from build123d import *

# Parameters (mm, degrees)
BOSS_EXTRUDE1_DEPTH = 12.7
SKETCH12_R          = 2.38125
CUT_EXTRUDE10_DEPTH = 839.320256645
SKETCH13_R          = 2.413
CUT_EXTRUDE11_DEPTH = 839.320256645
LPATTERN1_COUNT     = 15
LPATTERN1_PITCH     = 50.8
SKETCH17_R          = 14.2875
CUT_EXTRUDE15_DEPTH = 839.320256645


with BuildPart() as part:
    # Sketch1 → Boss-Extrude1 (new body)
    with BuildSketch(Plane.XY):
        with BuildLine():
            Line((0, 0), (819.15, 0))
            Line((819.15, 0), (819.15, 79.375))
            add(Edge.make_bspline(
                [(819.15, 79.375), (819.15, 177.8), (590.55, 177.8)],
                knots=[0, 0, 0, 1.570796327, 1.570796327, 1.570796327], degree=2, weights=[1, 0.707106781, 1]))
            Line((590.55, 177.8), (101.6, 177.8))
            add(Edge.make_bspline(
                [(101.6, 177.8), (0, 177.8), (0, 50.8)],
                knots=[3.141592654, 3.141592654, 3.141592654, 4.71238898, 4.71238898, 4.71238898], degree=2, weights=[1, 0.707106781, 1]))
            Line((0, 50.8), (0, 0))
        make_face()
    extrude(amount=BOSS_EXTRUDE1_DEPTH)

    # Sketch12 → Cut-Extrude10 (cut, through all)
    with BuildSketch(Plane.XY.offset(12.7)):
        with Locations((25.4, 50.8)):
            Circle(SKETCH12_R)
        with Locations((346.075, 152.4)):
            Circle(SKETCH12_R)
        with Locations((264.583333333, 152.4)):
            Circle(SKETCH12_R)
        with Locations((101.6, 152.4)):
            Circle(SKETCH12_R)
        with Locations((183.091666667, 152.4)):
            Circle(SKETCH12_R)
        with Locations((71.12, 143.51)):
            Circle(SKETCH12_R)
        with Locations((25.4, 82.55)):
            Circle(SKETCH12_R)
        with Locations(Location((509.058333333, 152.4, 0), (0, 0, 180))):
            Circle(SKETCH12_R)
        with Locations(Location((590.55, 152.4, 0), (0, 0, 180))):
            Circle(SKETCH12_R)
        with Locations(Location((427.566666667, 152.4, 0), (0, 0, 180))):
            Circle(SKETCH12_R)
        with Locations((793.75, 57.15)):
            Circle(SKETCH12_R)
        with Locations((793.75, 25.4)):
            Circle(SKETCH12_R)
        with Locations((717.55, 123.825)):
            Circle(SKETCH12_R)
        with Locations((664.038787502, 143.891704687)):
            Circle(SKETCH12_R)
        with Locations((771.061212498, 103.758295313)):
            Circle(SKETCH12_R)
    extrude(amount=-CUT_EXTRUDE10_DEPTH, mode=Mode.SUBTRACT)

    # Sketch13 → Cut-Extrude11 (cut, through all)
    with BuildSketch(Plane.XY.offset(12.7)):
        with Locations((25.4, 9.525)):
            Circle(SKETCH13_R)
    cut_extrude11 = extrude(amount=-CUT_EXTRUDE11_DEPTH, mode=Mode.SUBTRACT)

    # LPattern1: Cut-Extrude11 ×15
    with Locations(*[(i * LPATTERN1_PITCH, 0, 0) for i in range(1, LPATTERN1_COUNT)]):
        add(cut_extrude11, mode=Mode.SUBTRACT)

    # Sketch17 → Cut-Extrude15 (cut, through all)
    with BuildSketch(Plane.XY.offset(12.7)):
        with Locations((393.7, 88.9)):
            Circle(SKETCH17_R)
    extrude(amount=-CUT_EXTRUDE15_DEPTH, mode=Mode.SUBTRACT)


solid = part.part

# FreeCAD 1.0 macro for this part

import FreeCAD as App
import Part
import Sketcher
Q = App.Units.Quantity

doc = App.newDocument("Part")
body = doc.addObject("PartDesign::Body", "Body")

sketch1 = body.newObject("Sketcher::SketchObject", "Sketch")
sketch1.AttachmentSupport = (doc.getObject("XY_Plane"), [""])
sketch1.MapMode = "FlatFace"
sketch1.addGeometry(Part.LineSegment(App.Vector(0, 0, 0), App.Vector(819.15, 0, 0)), False)
sketch1.addGeometry(Part.LineSegment(App.Vector(819.15, 0, 0), App.Vector(819.15, 79.375, 0)), False)
sketch1.addGeometry(Part.BSplineCurve([App.Vector(819.15, 79.375, 0), App.Vector(819.15, 177.8, 0), App.Vector(590.55, 177.8, 0)], [3, 3], [0, 1.570796327], False, 2, [1, 0.707106781, 1], False), False)
sketch1.addGeometry(Part.LineSegment(App.Vector(590.55, 177.8, 0), App.Vector(101.6, 177.8, 0)), False)
sketch1.addGeometry(Part.BSplineCurve([App.Vector(101.6, 177.8, 0), App.Vector(0, 177.8, 0), App.Vector(0, 50.8, 0)], [3, 3], [3.141592654, 4.71238898], False, 2, [1, 0.707106781, 1], False), False)
sketch1.addGeometry(Part.LineSegment(App.Vector(0, 50.8, 0), App.Vector(0, 0, 0)), False)
sketch1.addConstraint(Sketcher.Constraint("Block", 2))
sketch1.addConstraint(Sketcher.Constraint("Block", 4))
sketch1.addConstraint(Sketcher.Constraint("Coincident", 0, 2, 1, 1))
sketch1.addConstraint(Sketcher.Constraint("Coincident", 1, 2, 2, 1))
sketch1.addConstraint(Sketcher.Constraint("Coincident", 2, 2, 3, 1))
sketch1.addConstraint(Sketcher.Constraint("Coincident", 3, 2, 4, 1))
sketch1.addConstraint(Sketcher.Constraint("Coincident", 4, 2, 5, 1))
sketch1.addConstraint(Sketcher.Constraint("Coincident", 5, 2, 0, 1))
sketch1.addConstraint(Sketcher.Constraint("Horizontal", 0))
sketch1.addConstraint(Sketcher.Constraint("Vertical", 1))
sketch1.addConstraint(Sketcher.Constraint("Vertical", 5))
sketch1.addConstraint(Sketcher.Constraint("PointOnObject", 0, 2, -1))
pad1 = body.newObject("PartDesign::Pad", "Pad")
pad1.Profile = sketch1
pad1.Length = Q("0.5 in")

sketch2 = body.newObject("Sketcher::SketchObject", "Sketch001")
sketch2.AttachmentSupport = (doc.getObject("XY_Plane"), [""])
sketch2.MapMode = "FlatFace"
sketch2.AttachmentOffset = App.Placement(App.Vector(0, 0, 0.5 * 25.4), App.Rotation())
sketch2.addGeometry(Part.Circle(App.Vector(25.4, 50.8, 0), App.Vector(0, 0, 1), 2.4), False)
sketch2.addGeometry(Part.Circle(App.Vector(346.1, 152.4, 0), App.Vector(0, 0, 1), 2.4), False)
sketch2.addGeometry(Part.Circle(App.Vector(264.6, 152.4, 0), App.Vector(0, 0, 1), 2.4), False)
sketch2.addGeometry(Part.Circle(App.Vector(101.6, 152.4, 0), App.Vector(0, 0, 1), 2.4), False)
sketch2.addGeometry(Part.Circle(App.Vector(183.1, 152.4, 0), App.Vector(0, 0, 1), 2.4), False)
sketch2.addGeometry(Part.Circle(App.Vector(71.1, 143.5, 0), App.Vector(0, 0, 1), 2.4), False)
sketch2.addGeometry(Part.Circle(App.Vector(25.4, 82.5, 0), App.Vector(0, 0, 1), 2.4), False)
sketch2.addGeometry(Part.Circle(App.Vector(509.1, 152.4, 0), App.Vector(0, 0, 1), 2.4), False)
sketch2.addGeometry(Part.Circle(App.Vector(590.5, 152.4, 0), App.Vector(0, 0, 1), 2.4), False)
sketch2.addGeometry(Part.Circle(App.Vector(427.6, 152.4, 0), App.Vector(0, 0, 1), 2.4), False)
sketch2.addGeometry(Part.Circle(App.Vector(793.8, 57.1, 0), App.Vector(0, 0, 1), 2.4), False)
sketch2.addGeometry(Part.Circle(App.Vector(793.8, 25.4, 0), App.Vector(0, 0, 1), 2.4), False)
sketch2.addGeometry(Part.Circle(App.Vector(717.5, 123.8, 0), App.Vector(0, 0, 1), 2.4), False)
sketch2.addGeometry(Part.Circle(App.Vector(664, 143.9, 0), App.Vector(0, 0, 1), 2.4), False)
sketch2.addGeometry(Part.Circle(App.Vector(771.1, 103.8, 0), App.Vector(0, 0, 1), 2.4), False)
sketch2.addConstraint(Sketcher.Constraint("Equal", 0, 1))
sketch2.addConstraint(Sketcher.Constraint("Equal", 1, 2))
sketch2.addConstraint(Sketcher.Constraint("Equal", 2, 3))
sketch2.addConstraint(Sketcher.Constraint("Equal", 3, 4))
sketch2.addConstraint(Sketcher.Constraint("Equal", 4, 5))
sketch2.addConstraint(Sketcher.Constraint("Equal", 5, 6))
sketch2.addConstraint(Sketcher.Constraint("Equal", 6, 7))
sketch2.addConstraint(Sketcher.Constraint("Equal", 7, 8))
sketch2.addConstraint(Sketcher.Constraint("Equal", 8, 9))
sketch2.addConstraint(Sketcher.Constraint("Equal", 9, 10))
sketch2.addConstraint(Sketcher.Constraint("Equal", 10, 11))
sketch2.addConstraint(Sketcher.Constraint("Equal", 11, 12))
sketch2.addConstraint(Sketcher.Constraint("Equal", 12, 13))
sketch2.addConstraint(Sketcher.Constraint("Equal", 13, 14))
sketch2.addConstraint(Sketcher.Constraint("Horizontal", 1, 3, 2, 3))
sketch2.addConstraint(Sketcher.Constraint("Horizontal", 2, 3, 3, 3))
sketch2.addConstraint(Sketcher.Constraint("Horizontal", 3, 3, 4, 3))
sketch2.addConstraint(Sketcher.Constraint("Horizontal", 4, 3, 7, 3))
sketch2.addConstraint(Sketcher.Constraint("Horizontal", 7, 3, 8, 3))
sketch2.addConstraint(Sketcher.Constraint("Horizontal", 8, 3, 9, 3))
sketch2.addConstraint(Sketcher.Constraint("Vertical", 0, 3, 6, 3))
sketch2.addConstraint(Sketcher.Constraint("Vertical", 10, 3, 11, 3))
sketch2.addConstraint(Sketcher.Constraint("Diameter", 0, Q("0.1875 in")))
sketch2.addConstraint(Sketcher.Constraint("DistanceX", -1, 1, 0, 3, Q("1 in")))
sketch2.addConstraint(Sketcher.Constraint("DistanceY", -1, 1, 0, 3, Q("2 in")))
sketch2.addConstraint(Sketcher.Constraint("DistanceY", -1, 1, 1, 3, Q("6 in")))
sketch2.addConstraint(Sketcher.Constraint("DistanceX", -1, 1, 3, 3, Q("4 in")))
sketch2.addConstraint(Sketcher.Constraint("DistanceY", -1, 1, 11, 3, Q("1 in")))
sketch2.addConstraint(Sketcher.Constraint("DistanceX", 8, 3, 10, 3, Q("8 in")))
sketch2.addConstraint(Sketcher.Constraint("DistanceX", 12, 3, 10, 3, Q("3 in")))
sketch2.addConstraint(Sketcher.Constraint("DistanceX", -1, 1, 5, 3, Q("2.8 in")))
sketch2.addConstraint(Sketcher.Constraint("DistanceY", 6, 3, 5, 3, Q("2.4 in")))
sketch2.addConstraint(Sketcher.Constraint("DistanceY", -1, 1, 5, 3, Q("5.65 in")))
sketch2.addConstraint(Sketcher.Constraint("DistanceX", -1, 1, 8, 3, Q("23.25 in")))
sketch2.addConstraint(Sketcher.Constraint("DistanceY", -1, 1, 10, 3, Q("2.25 in")))
sketch2.addConstraint(Sketcher.Constraint("DistanceX", -1, 1, 1, 3, Q("13.625 in")))
sketch2.addConstraint(Sketcher.Constraint("DistanceY", -1, 1, 12, 3, Q("4.875 in")))
sketch2.addConstraint(Sketcher.Constraint("DistanceX", 2, 3, 7, 3, Q("9.625 in")))
sketch2.addConstraint(Sketcher.Constraint("DistanceX", 4, 3, 9, 3, Q("9.625 in")))
sketch2.addConstraint(Sketcher.Constraint("DistanceY", 14, 3, 13, 3, Q("40.133409 mm")))
sketch2.addConstraint(Sketcher.Constraint("DistanceX", -1, 1, 2, 3, Q("264.583333 mm")))
sketch2.addConstraint(Sketcher.Constraint("DistanceX", -1, 1, 4, 3, Q("183.091667 mm")))
sketch2.addConstraint(Sketcher.Constraint("DistanceX", -1, 1, 13, 3, Q("664.038788 mm")))
sketch2.addConstraint(Sketcher.Constraint("DistanceY", -1, 1, 13, 3, Q("143.891705 mm")))
sketch2.addConstraint(Sketcher.Constraint("DistanceX", -1, 1, 14, 3, Q("771.061212 mm")))
pocket1 = body.newObject("PartDesign::Pocket", "Pocket")
pocket1.Profile = sketch2
pocket1.Type = "ThroughAll"

sketch3 = body.newObject("Sketcher::SketchObject", "Sketch002")
sketch3.AttachmentSupport = (doc.getObject("XY_Plane"), [""])
sketch3.MapMode = "FlatFace"
sketch3.AttachmentOffset = App.Placement(App.Vector(0, 0, 0.5 * 25.4), App.Rotation())
sketch3.addGeometry(Part.Circle(App.Vector(25.4, 9.5, 0), App.Vector(0, 0, 1), 2.4), False)
sketch3.addConstraint(Sketcher.Constraint("Diameter", 0, Q("0.19 in")))
sketch3.addConstraint(Sketcher.Constraint("DistanceX", -1, 1, 0, 3, Q("1 in")))
sketch3.addConstraint(Sketcher.Constraint("DistanceY", -1, 1, 0, 3, Q("0.375 in")))
pocket2 = body.newObject("PartDesign::Pocket", "Pocket001")
pocket2.Profile = sketch3
pocket2.Type = "ThroughAll"
doc.recompute()

linearpattern = body.newObject("PartDesign::LinearPattern", "LinearPattern")
linearpattern.Originals = [pocket2]
linearpattern.Direction = (doc.getObject("X_Axis"), [""])
linearpattern.Mode = "offset"
linearpattern.Offset = Q("2 in")
linearpattern.Occurrences = 15
body.Tip = linearpattern

sketch4 = body.newObject("Sketcher::SketchObject", "Sketch003")
sketch4.AttachmentSupport = (doc.getObject("XY_Plane"), [""])
sketch4.MapMode = "FlatFace"
sketch4.AttachmentOffset = App.Placement(App.Vector(0, 0, 0.5 * 25.4), App.Rotation())
sketch4.addGeometry(Part.Circle(App.Vector(394, 89, 0), App.Vector(0, 0, 1), 14), False)
sketch4.addConstraint(Sketcher.Constraint("Diameter", 0, Q("1.125 in")))
sketch4.addConstraint(Sketcher.Constraint("DistanceX", -1, 1, 0, 3, Q("15.5 in")))
sketch4.addConstraint(Sketcher.Constraint("DistanceY", -1, 1, 0, 3, Q("3.5 in")))
pocket3 = body.newObject("PartDesign::Pocket", "Pocket002")
pocket3.Profile = sketch4
pocket3.Type = "ThroughAll"

doc.recompute()
